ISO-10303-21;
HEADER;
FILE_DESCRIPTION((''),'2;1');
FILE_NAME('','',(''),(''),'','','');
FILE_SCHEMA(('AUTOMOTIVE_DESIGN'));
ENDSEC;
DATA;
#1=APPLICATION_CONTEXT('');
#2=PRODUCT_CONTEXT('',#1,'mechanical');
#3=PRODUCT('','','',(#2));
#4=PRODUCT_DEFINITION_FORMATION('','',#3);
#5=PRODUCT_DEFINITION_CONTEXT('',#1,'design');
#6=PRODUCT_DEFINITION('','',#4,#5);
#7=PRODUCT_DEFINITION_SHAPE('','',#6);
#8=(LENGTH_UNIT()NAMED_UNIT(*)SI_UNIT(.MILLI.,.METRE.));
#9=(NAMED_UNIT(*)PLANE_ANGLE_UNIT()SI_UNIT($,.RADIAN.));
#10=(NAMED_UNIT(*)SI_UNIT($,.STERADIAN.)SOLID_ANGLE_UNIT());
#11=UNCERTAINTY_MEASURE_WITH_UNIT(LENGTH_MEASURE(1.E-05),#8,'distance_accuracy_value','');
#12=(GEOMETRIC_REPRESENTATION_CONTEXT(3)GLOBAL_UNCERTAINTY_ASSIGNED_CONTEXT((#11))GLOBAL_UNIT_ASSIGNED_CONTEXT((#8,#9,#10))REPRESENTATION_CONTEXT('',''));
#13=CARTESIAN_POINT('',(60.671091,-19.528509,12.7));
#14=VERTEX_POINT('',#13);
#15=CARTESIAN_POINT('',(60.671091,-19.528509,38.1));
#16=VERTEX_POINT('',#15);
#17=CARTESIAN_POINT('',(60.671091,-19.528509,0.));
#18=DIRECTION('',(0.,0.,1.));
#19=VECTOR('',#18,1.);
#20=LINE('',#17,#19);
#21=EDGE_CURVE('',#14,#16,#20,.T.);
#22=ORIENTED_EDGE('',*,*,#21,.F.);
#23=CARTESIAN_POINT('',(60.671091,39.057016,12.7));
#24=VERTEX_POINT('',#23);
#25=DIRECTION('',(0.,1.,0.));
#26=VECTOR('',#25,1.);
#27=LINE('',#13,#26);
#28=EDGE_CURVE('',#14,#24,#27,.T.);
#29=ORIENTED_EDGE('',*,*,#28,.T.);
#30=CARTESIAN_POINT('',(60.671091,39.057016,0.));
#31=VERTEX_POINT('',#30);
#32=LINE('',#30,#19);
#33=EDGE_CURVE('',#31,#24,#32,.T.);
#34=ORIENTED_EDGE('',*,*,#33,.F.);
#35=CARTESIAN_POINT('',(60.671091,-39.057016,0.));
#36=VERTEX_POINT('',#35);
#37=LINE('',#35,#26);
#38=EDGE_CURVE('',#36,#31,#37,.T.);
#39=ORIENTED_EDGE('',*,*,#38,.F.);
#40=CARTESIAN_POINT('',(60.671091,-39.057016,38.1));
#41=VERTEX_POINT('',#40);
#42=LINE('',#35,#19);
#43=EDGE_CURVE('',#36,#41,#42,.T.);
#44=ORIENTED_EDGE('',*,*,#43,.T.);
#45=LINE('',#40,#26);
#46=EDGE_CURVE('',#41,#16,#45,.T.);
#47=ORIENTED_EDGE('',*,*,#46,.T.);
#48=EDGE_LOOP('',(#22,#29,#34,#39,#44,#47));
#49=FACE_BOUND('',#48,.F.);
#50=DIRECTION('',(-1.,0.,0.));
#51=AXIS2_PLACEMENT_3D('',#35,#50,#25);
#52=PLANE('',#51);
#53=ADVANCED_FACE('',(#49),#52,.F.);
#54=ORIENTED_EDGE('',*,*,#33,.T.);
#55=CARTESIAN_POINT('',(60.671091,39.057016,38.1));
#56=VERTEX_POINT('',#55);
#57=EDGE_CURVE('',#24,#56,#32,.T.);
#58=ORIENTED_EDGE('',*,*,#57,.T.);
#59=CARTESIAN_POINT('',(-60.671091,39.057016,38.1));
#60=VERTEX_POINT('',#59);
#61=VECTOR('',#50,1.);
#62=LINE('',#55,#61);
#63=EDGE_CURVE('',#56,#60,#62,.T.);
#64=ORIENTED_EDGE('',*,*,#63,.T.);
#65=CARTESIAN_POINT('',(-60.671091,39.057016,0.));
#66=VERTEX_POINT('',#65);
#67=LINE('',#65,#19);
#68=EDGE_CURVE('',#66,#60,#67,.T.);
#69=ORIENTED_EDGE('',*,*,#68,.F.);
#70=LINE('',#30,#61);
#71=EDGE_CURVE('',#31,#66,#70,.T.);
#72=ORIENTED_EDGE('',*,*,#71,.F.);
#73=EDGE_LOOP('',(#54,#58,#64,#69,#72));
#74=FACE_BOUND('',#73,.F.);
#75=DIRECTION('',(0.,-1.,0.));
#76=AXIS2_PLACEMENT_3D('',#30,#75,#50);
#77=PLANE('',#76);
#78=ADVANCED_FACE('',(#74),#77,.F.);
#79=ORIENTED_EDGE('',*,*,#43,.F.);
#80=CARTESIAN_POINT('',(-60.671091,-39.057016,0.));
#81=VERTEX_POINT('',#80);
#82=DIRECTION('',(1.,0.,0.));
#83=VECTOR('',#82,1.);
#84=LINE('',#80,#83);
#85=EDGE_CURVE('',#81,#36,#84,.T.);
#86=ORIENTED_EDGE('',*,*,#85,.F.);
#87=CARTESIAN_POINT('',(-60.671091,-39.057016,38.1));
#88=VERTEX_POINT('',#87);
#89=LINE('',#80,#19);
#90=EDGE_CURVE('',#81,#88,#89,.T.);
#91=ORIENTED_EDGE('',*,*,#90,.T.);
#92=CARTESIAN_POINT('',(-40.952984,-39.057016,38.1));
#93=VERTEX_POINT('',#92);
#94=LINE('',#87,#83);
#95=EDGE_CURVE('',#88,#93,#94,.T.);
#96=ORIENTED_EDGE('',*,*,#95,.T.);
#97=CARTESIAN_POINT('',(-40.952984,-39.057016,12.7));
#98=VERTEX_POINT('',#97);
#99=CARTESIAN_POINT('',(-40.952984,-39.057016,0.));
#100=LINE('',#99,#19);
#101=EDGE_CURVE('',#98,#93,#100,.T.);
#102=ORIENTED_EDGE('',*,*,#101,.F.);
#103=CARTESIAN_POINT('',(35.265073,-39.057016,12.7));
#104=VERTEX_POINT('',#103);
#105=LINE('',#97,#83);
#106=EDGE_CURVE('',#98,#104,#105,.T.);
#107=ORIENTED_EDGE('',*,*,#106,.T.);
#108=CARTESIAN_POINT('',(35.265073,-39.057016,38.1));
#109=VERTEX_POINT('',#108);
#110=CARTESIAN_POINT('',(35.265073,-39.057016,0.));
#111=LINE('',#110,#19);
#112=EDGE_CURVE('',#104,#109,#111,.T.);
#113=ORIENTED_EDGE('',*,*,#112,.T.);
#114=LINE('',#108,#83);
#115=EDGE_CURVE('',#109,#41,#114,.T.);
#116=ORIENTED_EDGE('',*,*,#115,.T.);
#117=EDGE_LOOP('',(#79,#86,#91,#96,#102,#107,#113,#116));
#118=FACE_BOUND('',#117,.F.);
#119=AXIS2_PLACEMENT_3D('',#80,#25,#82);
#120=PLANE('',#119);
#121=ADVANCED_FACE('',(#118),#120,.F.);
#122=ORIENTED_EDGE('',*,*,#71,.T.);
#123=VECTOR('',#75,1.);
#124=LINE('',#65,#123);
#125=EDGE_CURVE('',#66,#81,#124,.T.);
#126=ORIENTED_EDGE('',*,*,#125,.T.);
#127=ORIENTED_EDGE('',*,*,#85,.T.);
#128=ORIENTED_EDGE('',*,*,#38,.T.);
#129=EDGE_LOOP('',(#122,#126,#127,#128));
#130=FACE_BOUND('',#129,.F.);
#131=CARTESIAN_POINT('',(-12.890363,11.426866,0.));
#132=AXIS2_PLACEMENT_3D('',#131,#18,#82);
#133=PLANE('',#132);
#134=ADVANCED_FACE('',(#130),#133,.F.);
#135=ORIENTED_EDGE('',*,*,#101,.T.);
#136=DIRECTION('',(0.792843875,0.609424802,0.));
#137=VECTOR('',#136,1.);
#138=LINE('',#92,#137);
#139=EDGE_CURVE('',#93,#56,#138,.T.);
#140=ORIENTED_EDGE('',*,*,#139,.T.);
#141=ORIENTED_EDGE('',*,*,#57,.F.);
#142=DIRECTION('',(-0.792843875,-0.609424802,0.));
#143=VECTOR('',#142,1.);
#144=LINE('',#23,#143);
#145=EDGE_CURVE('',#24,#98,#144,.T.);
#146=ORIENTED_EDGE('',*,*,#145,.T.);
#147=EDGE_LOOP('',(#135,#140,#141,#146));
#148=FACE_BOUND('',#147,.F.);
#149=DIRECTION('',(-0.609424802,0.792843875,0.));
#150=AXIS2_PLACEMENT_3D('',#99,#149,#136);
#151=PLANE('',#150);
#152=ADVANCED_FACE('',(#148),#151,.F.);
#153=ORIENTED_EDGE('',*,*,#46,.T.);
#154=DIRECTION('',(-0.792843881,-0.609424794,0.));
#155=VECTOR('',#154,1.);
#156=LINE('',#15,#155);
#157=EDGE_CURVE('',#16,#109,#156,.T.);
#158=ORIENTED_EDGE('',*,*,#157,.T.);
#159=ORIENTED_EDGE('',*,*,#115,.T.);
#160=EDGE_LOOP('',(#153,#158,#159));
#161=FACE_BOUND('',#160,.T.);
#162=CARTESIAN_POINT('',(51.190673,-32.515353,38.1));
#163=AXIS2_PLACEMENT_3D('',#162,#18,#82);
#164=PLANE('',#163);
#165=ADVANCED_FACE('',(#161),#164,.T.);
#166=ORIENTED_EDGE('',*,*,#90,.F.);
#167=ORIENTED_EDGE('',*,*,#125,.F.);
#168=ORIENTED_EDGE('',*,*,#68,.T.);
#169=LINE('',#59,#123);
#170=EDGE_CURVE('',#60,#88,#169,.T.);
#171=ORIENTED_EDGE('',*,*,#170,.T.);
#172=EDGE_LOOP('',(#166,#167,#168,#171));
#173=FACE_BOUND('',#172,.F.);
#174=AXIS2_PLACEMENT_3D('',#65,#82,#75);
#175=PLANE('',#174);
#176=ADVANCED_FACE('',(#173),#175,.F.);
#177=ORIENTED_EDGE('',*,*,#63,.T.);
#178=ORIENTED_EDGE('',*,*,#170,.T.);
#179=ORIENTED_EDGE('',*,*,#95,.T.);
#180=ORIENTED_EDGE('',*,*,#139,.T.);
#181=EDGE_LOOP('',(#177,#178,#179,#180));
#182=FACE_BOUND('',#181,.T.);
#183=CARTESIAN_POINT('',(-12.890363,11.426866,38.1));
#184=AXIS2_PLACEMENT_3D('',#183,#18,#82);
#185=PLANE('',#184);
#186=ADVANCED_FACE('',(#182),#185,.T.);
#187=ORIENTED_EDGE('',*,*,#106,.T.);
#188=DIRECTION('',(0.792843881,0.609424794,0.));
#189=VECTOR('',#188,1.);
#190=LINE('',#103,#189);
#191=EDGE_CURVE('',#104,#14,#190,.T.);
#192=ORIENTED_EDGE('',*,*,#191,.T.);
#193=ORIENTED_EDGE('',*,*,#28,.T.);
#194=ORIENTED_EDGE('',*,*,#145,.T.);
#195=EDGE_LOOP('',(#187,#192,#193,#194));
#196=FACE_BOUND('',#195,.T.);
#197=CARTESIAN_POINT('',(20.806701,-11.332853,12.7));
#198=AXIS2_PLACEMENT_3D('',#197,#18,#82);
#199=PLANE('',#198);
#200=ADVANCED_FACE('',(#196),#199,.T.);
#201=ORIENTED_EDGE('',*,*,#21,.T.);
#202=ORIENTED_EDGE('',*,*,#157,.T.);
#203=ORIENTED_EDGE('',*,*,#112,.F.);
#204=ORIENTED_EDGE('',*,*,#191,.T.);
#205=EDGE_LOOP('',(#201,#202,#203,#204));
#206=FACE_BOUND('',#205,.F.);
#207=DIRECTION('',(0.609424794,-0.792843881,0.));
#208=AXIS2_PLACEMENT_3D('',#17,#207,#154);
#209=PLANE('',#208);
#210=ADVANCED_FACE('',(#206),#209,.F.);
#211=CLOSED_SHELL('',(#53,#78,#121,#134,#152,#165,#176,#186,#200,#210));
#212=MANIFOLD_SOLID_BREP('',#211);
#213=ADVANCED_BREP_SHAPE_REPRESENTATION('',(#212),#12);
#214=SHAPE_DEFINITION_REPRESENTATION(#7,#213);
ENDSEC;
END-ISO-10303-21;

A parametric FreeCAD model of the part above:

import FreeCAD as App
import Part
import Sketcher

V = App.Vector
Q = App.Units.Quantity


def add_polygon(sketch, points):
    """Adds a closed chain of lines whose ends are joined by coincident constraints."""
    first, n = sketch.GeometryCount, len(points)
    for a, b in zip(points, points[1:] + points[:1]):
        sketch.addGeometry(Part.LineSegment(App.Vector(*a, 0), App.Vector(*b, 0)), False)
    for i in range(n):
        sketch.addConstraint(Sketcher.Constraint("Coincident", first + i, 2, first + (i + 1) % n, 1))

doc = App.newDocument("Part")
body = doc.addObject("PartDesign::Body", "Body")

sketch1 = body.newObject("Sketcher::SketchObject", "Sketch")
sketch1.AttachmentSupport = (doc.getObject("XY_Plane"), [""])
sketch1.MapMode = "FlatFace"
add_polygon(sketch1, [(61, -20), (61, 39), (-41, -39), (35, -39)])
sketch1.addConstraint(Sketcher.Constraint("Vertical", 0))
sketch1.addConstraint(Sketcher.Constraint("Horizontal", 2))
sketch1.addConstraint(Sketcher.Constraint("Parallel", 1, 3))
sketch1.addConstraint(Sketcher.Constraint("DistanceX", 2, 1, 2, 2, 76.218057))
sketch1.addConstraint(Sketcher.Constraint("DistanceY", 0, 1, 0, 2, 58.585525))
sketch1.addConstraint(Sketcher.Constraint("DistanceX", -1, 1, 0, 2, 60.671091))
sketch1.addConstraint(Sketcher.Constraint("DistanceY", 3, 2, -1, 1, 19.528509))
sketch1.addConstraint(Sketcher.Constraint("DistanceY", 1, 2, 0, 2, 78.114032))
pad1 = body.newObject("PartDesign::Pad", "Pad")
pad1.Profile = sketch1
pad1.Length = Q("0.5 in")

sketch2 = body.newObject("Sketcher::SketchObject", "Sketch001")
sketch2.AttachmentSupport = (doc.getObject("XY_Plane"), [""])
sketch2.MapMode = "FlatFace"
add_polygon(sketch2, [(61, -39), (61, -20), (35, -39)])
sketch2.addConstraint(Sketcher.Constraint("Vertical", 0))
sketch2.addConstraint(Sketcher.Constraint("Horizontal", 2))
sketch2.addConstraint(Sketcher.Constraint("DistanceX", 2, 1, 2, 2, 25.406018))
sketch2.addConstraint(Sketcher.Constraint("DistanceY", 0, 1, 0, 2, 19.528507))
sketch2.addConstraint(Sketcher.Constraint("DistanceX", -1, 1, 0, 2, 60.671091))
sketch2.addConstraint(Sketcher.Constraint("DistanceY", 0, 2, -1, 1, 19.528509))
pad2 = body.newObject("PartDesign::Pad", "Pad001")
pad2.Profile = sketch2
pad2.Length = Q("1.5 in")

sketch3 = body.newObject("Sketcher::SketchObject", "Sketch002")
sketch3.AttachmentSupport = (doc.getObject("XY_Plane"), [""])
sketch3.MapMode = "FlatFace"
add_polygon(sketch3, [(-41, -39), (61, 39), (-61, 39), (-61, -39)])
sketch3.addConstraint(Sketcher.Constraint("Horizontal", 1))
sketch3.addConstraint(Sketcher.Constraint("Vertical", 2))
sketch3.addConstraint(Sketcher.Constraint("Horizontal", 3))
sketch3.addConstraint(Sketcher.Constraint("Symmetric", 0, 2, 2, 2, -1, 1))
sketch3.addConstraint(Sketcher.Constraint("DistanceX", 1, 2, 1, 1, 121.342182))
sketch3.addConstraint(Sketcher.Constraint("DistanceY", 2, 2, 2, 1, 78.114032))
sketch3.addConstraint(Sketcher.Constraint("DistanceX", 3, 1, 3, 2, 19.718107))
pad3 = body.newObject("PartDesign::Pad", "Pad002")
pad3.Profile = sketch3
pad3.Length = Q("1.5 in")

doc.recompute()
